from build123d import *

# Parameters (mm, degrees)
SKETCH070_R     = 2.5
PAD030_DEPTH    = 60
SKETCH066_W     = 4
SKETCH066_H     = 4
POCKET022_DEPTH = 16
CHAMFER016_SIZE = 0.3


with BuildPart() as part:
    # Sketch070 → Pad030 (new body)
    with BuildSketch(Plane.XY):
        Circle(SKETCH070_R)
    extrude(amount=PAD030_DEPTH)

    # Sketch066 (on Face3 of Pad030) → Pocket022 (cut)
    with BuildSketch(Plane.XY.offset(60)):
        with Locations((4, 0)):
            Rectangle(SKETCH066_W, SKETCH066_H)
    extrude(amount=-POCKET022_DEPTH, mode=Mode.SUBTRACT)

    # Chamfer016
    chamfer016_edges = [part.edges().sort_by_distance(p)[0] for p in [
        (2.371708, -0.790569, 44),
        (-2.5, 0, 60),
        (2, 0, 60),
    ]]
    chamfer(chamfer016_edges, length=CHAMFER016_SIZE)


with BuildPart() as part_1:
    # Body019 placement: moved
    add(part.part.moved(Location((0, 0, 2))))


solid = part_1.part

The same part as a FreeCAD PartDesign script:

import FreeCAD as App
import Part
import Sketcher

V = App.Vector


def edges_at(feature, points):
    """Names of the edges that pass closest to the given points."""
    edges = feature.Shape.Edges
    near = lambda p: min(range(len(edges)), key=lambda i: edges[i].distToShape(Part.Vertex(*p))[0])
    return sorted({f"Edge{near(p) + 1}" for p in points})

doc = App.newDocument("Part")
body = doc.addObject("PartDesign::Body", "Body")

# Sketch on XY plane
sketch1 = body.newObject("Sketcher::SketchObject", "Sketch")
sketch1.AttachmentSupport = (doc.getObject("XY_Plane"), [""])
sketch1.MapMode = "FlatFace"
sketch1.addGeometry(Part.Circle(V(0, 0, 0), V(0, 0, 1), 2.5), False)
sketch1.addConstraint(Sketcher.Constraint("Coincident", 0, 3, -1, 1))
sketch1.addConstraint(Sketcher.Constraint("Diameter", 0, 5.0))
pad1 = body.newObject("PartDesign::Pad", "Pad")
pad1.Profile = sketch1
pad1.Length = 60

# Sketch on XY plane
sketch2 = body.newObject("Sketcher::SketchObject", "Sketch001")
sketch2.AttachmentSupport = (doc.getObject("XY_Plane"), [""])
sketch2.MapMode = "FlatFace"
sketch2.AttachmentOffset = App.Placement(V(0, 0, 60), App.Rotation())
sketch2.addGeometry(Part.LineSegment(V(2, 2, 0), V(2, -2, 0)), False)
sketch2.addGeometry(Part.LineSegment(V(2, -2, 0), V(6, -2, 0)), False)
sketch2.addGeometry(Part.LineSegment(V(6, -2, 0), V(6, 2, 0)), False)
sketch2.addGeometry(Part.LineSegment(V(6, 2, 0), V(2, 2, 0)), False)
sketch2.addConstraint(Sketcher.Constraint("Coincident", 0, 2, 1, 1))
sketch2.addConstraint(Sketcher.Constraint("Coincident", 1, 2, 2, 1))
sketch2.addConstraint(Sketcher.Constraint("Coincident", 2, 2, 3, 1))
sketch2.addConstraint(Sketcher.Constraint("Coincident", 3, 2, 0, 1))
sketch2.addConstraint(Sketcher.Constraint("Vertical", 0))
sketch2.addConstraint(Sketcher.Constraint("Horizontal", 1))
sketch2.addConstraint(Sketcher.Constraint("Vertical", 2))
sketch2.addConstraint(Sketcher.Constraint("Horizontal", 3))
sketch2.addConstraint(Sketcher.Constraint("Equal", 3, 0))
sketch2.addConstraint(Sketcher.Constraint("DistanceX", 1, 1, 1, 2, 4.0))
sketch2.addConstraint(Sketcher.Constraint("DistanceX", -1, 1, 0, 2, 2.0))
sketch2.addConstraint(Sketcher.Constraint("DistanceY", 0, 2, -1, 1, 2.0))
pocket1 = body.newObject("PartDesign::Pocket", "Pocket")
pocket1.Profile = sketch2
pocket1.Length = 16
doc.recompute()

chamfer = body.newObject("PartDesign::Chamfer", "Chamfer")
chamfer.Base = (pocket1, edges_at(pocket1, [(2.372, -0.791, 44), (-2.5, 0, 60), (2, 0, 60)]))
chamfer.Size = 0.3
body2 = doc.addObject("PartDesign::Body", "Body001")
doc.recompute()

body.Placement = App.Placement(V(0, 0, 2), App.Rotation(V(0, 0, 1), 0))
boolean = body2.newObject("PartDesign::Boolean", "Boolean")
boolean.Type = "Fuse"
boolean.addObjects([body])

doc.recompute()
